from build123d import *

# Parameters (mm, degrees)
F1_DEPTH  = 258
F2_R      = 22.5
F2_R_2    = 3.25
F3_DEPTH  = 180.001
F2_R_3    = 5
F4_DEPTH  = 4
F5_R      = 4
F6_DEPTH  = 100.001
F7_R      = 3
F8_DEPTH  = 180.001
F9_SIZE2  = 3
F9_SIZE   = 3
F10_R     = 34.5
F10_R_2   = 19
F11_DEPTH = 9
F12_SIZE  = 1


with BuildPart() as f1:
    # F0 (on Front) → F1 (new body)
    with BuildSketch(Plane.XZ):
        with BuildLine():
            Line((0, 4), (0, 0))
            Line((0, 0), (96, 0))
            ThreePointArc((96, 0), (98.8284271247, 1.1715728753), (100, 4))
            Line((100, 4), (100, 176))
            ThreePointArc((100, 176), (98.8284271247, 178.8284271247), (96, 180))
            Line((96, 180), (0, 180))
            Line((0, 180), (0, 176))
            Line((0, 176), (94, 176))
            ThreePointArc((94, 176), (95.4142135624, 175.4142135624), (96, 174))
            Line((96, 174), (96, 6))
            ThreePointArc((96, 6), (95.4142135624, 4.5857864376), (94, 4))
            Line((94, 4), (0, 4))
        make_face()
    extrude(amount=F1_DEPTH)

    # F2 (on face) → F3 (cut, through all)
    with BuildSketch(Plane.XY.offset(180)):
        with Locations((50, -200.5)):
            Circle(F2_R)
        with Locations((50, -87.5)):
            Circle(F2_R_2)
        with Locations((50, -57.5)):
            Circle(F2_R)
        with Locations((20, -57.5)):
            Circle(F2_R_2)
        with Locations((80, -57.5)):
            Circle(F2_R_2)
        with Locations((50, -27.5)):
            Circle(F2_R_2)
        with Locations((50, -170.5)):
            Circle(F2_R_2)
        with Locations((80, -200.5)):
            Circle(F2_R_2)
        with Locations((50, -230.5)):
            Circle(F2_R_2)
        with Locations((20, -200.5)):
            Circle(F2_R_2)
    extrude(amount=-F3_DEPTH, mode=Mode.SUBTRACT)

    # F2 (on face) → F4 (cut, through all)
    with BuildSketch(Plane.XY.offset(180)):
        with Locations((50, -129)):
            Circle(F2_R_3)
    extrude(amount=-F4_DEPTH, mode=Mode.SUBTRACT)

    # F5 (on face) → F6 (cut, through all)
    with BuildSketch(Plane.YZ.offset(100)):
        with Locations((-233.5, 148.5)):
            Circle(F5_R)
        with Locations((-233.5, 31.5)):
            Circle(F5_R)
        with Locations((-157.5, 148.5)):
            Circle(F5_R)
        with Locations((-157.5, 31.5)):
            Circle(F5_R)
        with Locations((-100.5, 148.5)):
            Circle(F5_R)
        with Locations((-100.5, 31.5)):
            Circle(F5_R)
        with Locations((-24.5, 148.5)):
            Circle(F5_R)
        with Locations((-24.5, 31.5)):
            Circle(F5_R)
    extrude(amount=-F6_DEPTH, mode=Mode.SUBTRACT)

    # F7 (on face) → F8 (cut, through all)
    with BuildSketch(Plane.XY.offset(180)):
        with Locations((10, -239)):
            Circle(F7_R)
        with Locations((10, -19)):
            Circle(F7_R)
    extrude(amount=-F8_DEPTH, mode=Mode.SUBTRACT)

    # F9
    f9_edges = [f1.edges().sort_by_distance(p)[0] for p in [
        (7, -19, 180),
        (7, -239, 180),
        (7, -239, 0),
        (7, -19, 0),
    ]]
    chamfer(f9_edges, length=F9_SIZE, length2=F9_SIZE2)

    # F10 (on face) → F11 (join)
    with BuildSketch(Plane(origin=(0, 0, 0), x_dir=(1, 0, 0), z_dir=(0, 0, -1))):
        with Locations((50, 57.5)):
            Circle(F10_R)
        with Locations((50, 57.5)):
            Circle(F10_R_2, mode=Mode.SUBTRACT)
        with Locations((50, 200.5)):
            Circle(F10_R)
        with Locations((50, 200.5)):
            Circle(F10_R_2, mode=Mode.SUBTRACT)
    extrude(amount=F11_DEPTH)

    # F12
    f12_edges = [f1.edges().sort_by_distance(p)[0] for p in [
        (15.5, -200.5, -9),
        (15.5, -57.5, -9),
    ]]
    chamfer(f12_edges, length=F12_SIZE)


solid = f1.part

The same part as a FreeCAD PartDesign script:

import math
import FreeCAD as App
import Part
import Sketcher
from FreeCAD import Vector
Q = App.Units.Quantity


def edges_at(feature, points):
    """Names of the edges that pass closest to the given points."""
    edges = feature.Shape.Edges
    near = lambda p: min(range(len(edges)), key=lambda i: edges[i].distToShape(Part.Vertex(*p))[0])
    return sorted({f"Edge{near(p) + 1}" for p in points})

doc = App.newDocument("Part")
body = doc.addObject("PartDesign::Body", "Body")

sketch1 = body.newObject("Sketcher::SketchObject", "Sketch")
sketch1.AttachmentSupport = (doc.getObject("XZ_Plane"), [""])
sketch1.MapMode = "FlatFace"
sketch1.addGeometry([
    Part.LineSegment(Vector(0, 4, 0), Vector(0, 0, 0)),
    Part.LineSegment(Vector(0, 0, 0), Vector(96, 0, 0)),
    Part.ArcOfCircle(Part.Circle(Vector(96, 4, 0), Vector(0, 0, 1), 4), math.radians(-90), math.radians(0)),
    Part.LineSegment(Vector(100, 4, 0), Vector(100, 176, 0)),
    Part.ArcOfCircle(Part.Circle(Vector(96, 176, 0), Vector(0, 0, 1), 4), math.radians(0), math.radians(90)),
    Part.LineSegment(Vector(96, 180, 0), Vector(0, 180, 0)),
    Part.LineSegment(Vector(0, 180, 0), Vector(0, 176, 0)),
    Part.LineSegment(Vector(0, 176, 0), Vector(94, 176, 0)),
    Part.ArcOfCircle(Part.Circle(Vector(94, 174, 0), Vector(0, 0, 1), 2), math.radians(0), math.radians(90)),
    Part.LineSegment(Vector(96, 174, 0), Vector(96, 6, 0)),
    Part.ArcOfCircle(Part.Circle(Vector(94, 6, 0), Vector(0, 0, 1), 2), math.radians(-90), math.radians(0)),
    Part.LineSegment(Vector(94, 4, 0), Vector(0, 4, 0)),
], False)
sketch1.addConstraint([
    Sketcher.Constraint("Coincident", 0, 2, 1, 1),
    Sketcher.Constraint("Tangent", 1, 2, 2, 1),
    Sketcher.Constraint("Tangent", 2, 2, 3, 1),
    Sketcher.Constraint("Tangent", 3, 2, 4, 1),
    Sketcher.Constraint("Tangent", 4, 2, 5, 1),
    Sketcher.Constraint("Coincident", 5, 2, 6, 1),
    Sketcher.Constraint("Coincident", 6, 2, 7, 1),
    Sketcher.Constraint("Tangent", 7, 2, 8, 2),
    Sketcher.Constraint("Tangent", 8, 1, 9, 1),
    Sketcher.Constraint("Tangent", 9, 2, 10, 2),
    Sketcher.Constraint("Tangent", 10, 1, 11, 1),
    Sketcher.Constraint("Coincident", 11, 2, 0, 1),
    Sketcher.Constraint("Vertical", 0),
    Sketcher.Constraint("Horizontal", 1),
    Sketcher.Constraint("Vertical", 3),
    Sketcher.Constraint("Horizontal", 5),
    Sketcher.Constraint("Vertical", 6),
    Sketcher.Constraint("Horizontal", 7),
    Sketcher.Constraint("Vertical", 9),
    Sketcher.Constraint("Horizontal", 11),
    Sketcher.Constraint("Coincident", 0, 2, -1, 1),
    Sketcher.Constraint("Equal", 2, 4),
    Sketcher.Constraint("Equal", 8, 10),
    Sketcher.Constraint("PointOnObject", 5, 2, -2),
    Sketcher.Constraint("Horizontal", 3, 2, 6, 2),
    Sketcher.Constraint("Horizontal", 2, 2, 10, 1),
    Sketcher.Constraint("Vertical", 4, 2, 8, 1),
    Sketcher.Constraint("Radius", 2, Q("4 mm")),
    Sketcher.Constraint("Radius", 8, Q("2 mm")),
    Sketcher.Constraint("DistanceX", 1, 1, 1, 2, Q("96 mm")),
    Sketcher.Constraint("DistanceY", 3, 1, 3, 2, Q("172 mm")),
])
pad1 = body.newObject("PartDesign::Pad", "Pad")
pad1.Profile = sketch1
pad1.Length = 258

sketch2 = body.newObject("Sketcher::SketchObject", "Sketch001")
sketch2.AttachmentSupport = (doc.getObject("XY_Plane"), [""])
sketch2.MapMode = "FlatFace"
sketch2.AttachmentOffset = App.Placement(Vector(0, 0, 180), App.Rotation())
sketch2.addGeometry([
    Part.Circle(Vector(50, -200.5, 0), Vector(0, 0, 1), 22.5),
    Part.Circle(Vector(50, -87.5, 0), Vector(0, 0, 1), 3.25),
    Part.Circle(Vector(50, -57.5, 0), Vector(0, 0, 1), 22.5),
    Part.Circle(Vector(20, -57.5, 0), Vector(0, 0, 1), 3.25),
    Part.Circle(Vector(80, -57.5, 0), Vector(0, 0, 1), 3.25),
    Part.Circle(Vector(50, -27.5, 0), Vector(0, 0, 1), 3.25),
    Part.Circle(Vector(50, -170.5, 0), Vector(0, 0, 1), 3.25),
    Part.Circle(Vector(80, -200.5, 0), Vector(0, 0, 1), 3.25),
    Part.Circle(Vector(50, -230.5, 0), Vector(0, 0, 1), 3.25),
    Part.Circle(Vector(20, -200.5, 0), Vector(0, 0, 1), 3.25),
], False)
sketch2.addConstraint([
    Sketcher.Constraint("Equal", 0, 2),
    Sketcher.Constraint("Equal", 1, 3),
    Sketcher.Constraint("Equal", 3, 4),
    Sketcher.Constraint("Equal", 4, 5),
    Sketcher.Constraint("Equal", 5, 6),
    Sketcher.Constraint("Equal", 6, 7),
    Sketcher.Constraint("Equal", 7, 8),
    Sketcher.Constraint("Equal", 8, 9),
    Sketcher.Constraint("Horizontal", 2, 3, 3, 3),
    Sketcher.Constraint("Horizontal", 3, 3, 4, 3),
    Sketcher.Constraint("Horizontal", 0, 3, 7, 3),
    Sketcher.Constraint("Horizontal", 7, 3, 9, 3),
    Sketcher.Constraint("Vertical", 0, 3, 1, 3),
    Sketcher.Constraint("Vertical", 1, 3, 2, 3),
    Sketcher.Constraint("Vertical", 2, 3, 5, 3),
    Sketcher.Constraint("Vertical", 5, 3, 6, 3),
    Sketcher.Constraint("Vertical", 4, 3, 7, 3),
    Sketcher.Constraint("Vertical", 6, 3, 8, 3),
    Sketcher.Constraint("Vertical", 3, 3, 9, 3),
    Sketcher.Constraint("Diameter", 0, Q("45 mm")),
    Sketcher.Constraint("Diameter", 1, Q("6.5 mm")),
    Sketcher.Constraint("DistanceX", -1, 1, 0, 3, Q("50 mm")),
    Sketcher.Constraint("DistanceX", -1, 1, 3, 3, Q("20 mm")),
    Sketcher.Constraint("DistanceX", -1, 1, 4, 3, Q("80 mm")),
    Sketcher.Constraint("DistanceY", 0, 3, 1, 3, Q("113 mm")),
    Sketcher.Constraint("DistanceY", 1, 3, 2, 3, Q("30 mm")),
    Sketcher.Constraint("DistanceY", 2, 3, 5, 3, Q("30 mm")),
    Sketcher.Constraint("DistanceY", 0, 3, 6, 3, Q("30 mm")),
    Sketcher.Constraint("DistanceY", 8, 3, 0, 3, Q("30 mm")),
    Sketcher.Constraint("DistanceY", 0, 3, -1, 1, Q("200.5 mm")),
])
pocket1 = body.newObject("PartDesign::Pocket", "Pocket")
pocket1.Profile = sketch2
pocket1.Type = "ThroughAll"

sketch3 = body.newObject("Sketcher::SketchObject", "Sketch002")
sketch3.AttachmentSupport = (doc.getObject("XY_Plane"), [""])
sketch3.MapMode = "FlatFace"
sketch3.AttachmentOffset = App.Placement(Vector(0, 0, 180), App.Rotation())
sketch3.addGeometry(Part.Circle(Vector(50, -129, 0), Vector(0, 0, 1), 5), False)
sketch3.addConstraint([
    Sketcher.Constraint("Diameter", 0, Q("10 mm")),
    Sketcher.Constraint("DistanceX", -1, 1, 0, 3, Q("50 mm")),
    Sketcher.Constraint("DistanceY", 0, 3, -1, 1, Q("129 mm")),
])
pocket2 = body.newObject("PartDesign::Pocket", "Pocket001")
pocket2.Profile = sketch3
pocket2.Length = 4

sketch4 = body.newObject("Sketcher::SketchObject", "Sketch003")
sketch4.AttachmentSupport = (doc.getObject("YZ_Plane"), [""])
sketch4.MapMode = "FlatFace"
sketch4.AttachmentOffset = App.Placement(Vector(0, 0, 100), App.Rotation())
sketch4.addGeometry([
    Part.Circle(Vector(-233.5, 148.5, 0), Vector(0, 0, 1), 4),
    Part.Circle(Vector(-233.5, 31.5, 0), Vector(0, 0, 1), 4),
    Part.Circle(Vector(-157.5, 148.5, 0), Vector(0, 0, 1), 4),
    Part.Circle(Vector(-157.5, 31.5, 0), Vector(0, 0, 1), 4),
    Part.Circle(Vector(-100.5, 148.5, 0), Vector(0, 0, 1), 4),
    Part.Circle(Vector(-100.5, 31.5, 0), Vector(0, 0, 1), 4),
    Part.Circle(Vector(-24.5, 148.5, 0), Vector(0, 0, 1), 4),
    Part.Circle(Vector(-24.5, 31.5, 0), Vector(0, 0, 1), 4),
], False)
sketch4.addConstraint([
    Sketcher.Constraint("Equal", 0, 1),
    Sketcher.Constraint("Equal", 1, 2),
    Sketcher.Constraint("Equal", 2, 3),
    Sketcher.Constraint("Equal", 3, 4),
    Sketcher.Constraint("Equal", 4, 5),
    Sketcher.Constraint("Equal", 5, 6),
    Sketcher.Constraint("Equal", 6, 7),
    Sketcher.Constraint("Horizontal", 0, 3, 2, 3),
    Sketcher.Constraint("Horizontal", 1, 3, 3, 3),
    Sketcher.Constraint("Horizontal", 2, 3, 4, 3),
    Sketcher.Constraint("Horizontal", 3, 3, 5, 3),
    Sketcher.Constraint("Horizontal", 4, 3, 6, 3),
    Sketcher.Constraint("Horizontal", 5, 3, 7, 3),
    Sketcher.Constraint("Vertical", 0, 3, 1, 3),
    Sketcher.Constraint("Vertical", 2, 3, 3, 3),
    Sketcher.Constraint("Vertical", 4, 3, 5, 3),
    Sketcher.Constraint("Vertical", 6, 3, 7, 3),
    Sketcher.Constraint("Diameter", 0, Q("8 mm")),
    Sketcher.Constraint("DistanceY", 1, 3, 0, 3, Q("117 mm")),
    Sketcher.Constraint("DistanceX", 0, 3, 2, 3, Q("76 mm")),
    Sketcher.Constraint("DistanceX", 2, 3, 4, 3, Q("57 mm")),
    Sketcher.Constraint("DistanceX", 4, 3, 6, 3, Q("76 mm")),
    Sketcher.Constraint("DistanceX", 0, 3, -1, 1, Q("233.5 mm")),
    Sketcher.Constraint("DistanceY", -1, 1, 0, 3, Q("148.5 mm")),
])
pocket3 = body.newObject("PartDesign::Pocket", "Pocket002")
pocket3.Profile = sketch4
pocket3.Type = "ThroughAll"

sketch5 = body.newObject("Sketcher::SketchObject", "Sketch004")
sketch5.AttachmentSupport = (doc.getObject("XY_Plane"), [""])
sketch5.MapMode = "FlatFace"
sketch5.AttachmentOffset = App.Placement(Vector(0, 0, 180), App.Rotation())
sketch5.addGeometry([
    Part.Circle(Vector(10, -239, 0), Vector(0, 0, 1), 3),
    Part.Circle(Vector(10, -19, 0), Vector(0, 0, 1), 3),
], False)
sketch5.addConstraint([
    Sketcher.Constraint("Equal", 0, 1),
    Sketcher.Constraint("Vertical", 0, 3, 1, 3),
    Sketcher.Constraint("Diameter", 0, Q("6 mm")),
    Sketcher.Constraint("DistanceX", -1, 1, 0, 3, Q("10 mm")),
    Sketcher.Constraint("DistanceY", 0, 3, -1, 1, Q("239 mm")),
    Sketcher.Constraint("DistanceY", 1, 3, -1, 1, Q("19 mm")),
])
pocket4 = body.newObject("PartDesign::Pocket", "Pocket003")
pocket4.Profile = sketch5
pocket4.Type = "ThroughAll"
doc.recompute()

chamfer = body.newObject("PartDesign::Chamfer", "Chamfer")
chamfer.Base = (pocket4, edges_at(pocket4, [
    (7, -19, 180),
    (7, -239, 180),
    (7, -239, 0),
    (7, -19, 0),
]))
chamfer.ChamferType = "Two distances"
chamfer.Size = 3
chamfer.Size2 = 3

sketch6 = body.newObject("Sketcher::SketchObject", "Sketch005")
sketch6.AttachmentSupport = (doc.getObject("XY_Plane"), [""])
sketch6.MapMode = "FlatFace"
sketch6.addGeometry([
    Part.Circle(Vector(50, -57.5, 0), Vector(0, 0, 1), 34.5),
    Part.Circle(Vector(50, -57.5, 0), Vector(0, 0, 1), 19),
    Part.Circle(Vector(50, -200.5, 0), Vector(0, 0, 1), 34.5),
    Part.Circle(Vector(50, -200.5, 0), Vector(0, 0, 1), 19),
], False)
sketch6.addConstraint([
    Sketcher.Constraint("Coincident", 1, 3, 0, 3),
    Sketcher.Constraint("Coincident", 3, 3, 2, 3),
    Sketcher.Constraint("Equal", 0, 2),
    Sketcher.Constraint("Equal", 1, 3),
    Sketcher.Constraint("Vertical", 1, 3, 2, 3),
    Sketcher.Constraint("Diameter", 0, Q("69 mm")),
    Sketcher.Constraint("Diameter", 1, Q("38 mm")),
    Sketcher.Constraint("DistanceX", -1, 1, 0, 3, Q("50 mm")),
    Sketcher.Constraint("DistanceY", 2, 3, 0, 3, Q("143 mm")),
    Sketcher.Constraint("DistanceY", 0, 3, -1, 1, Q("57.5 mm")),
])
pad2 = body.newObject("PartDesign::Pad", "Pad001")
pad2.Profile = sketch6
pad2.Length = 9
pad2.Reversed = True
doc.recompute()

chamfer2 = body.newObject("PartDesign::Chamfer", "Chamfer001")
chamfer2.Base = (pad2, edges_at(pad2, [(15.5, -200.5, -9), (15.5, -57.5, -9)]))
chamfer2.Size = 1

doc.recompute()
